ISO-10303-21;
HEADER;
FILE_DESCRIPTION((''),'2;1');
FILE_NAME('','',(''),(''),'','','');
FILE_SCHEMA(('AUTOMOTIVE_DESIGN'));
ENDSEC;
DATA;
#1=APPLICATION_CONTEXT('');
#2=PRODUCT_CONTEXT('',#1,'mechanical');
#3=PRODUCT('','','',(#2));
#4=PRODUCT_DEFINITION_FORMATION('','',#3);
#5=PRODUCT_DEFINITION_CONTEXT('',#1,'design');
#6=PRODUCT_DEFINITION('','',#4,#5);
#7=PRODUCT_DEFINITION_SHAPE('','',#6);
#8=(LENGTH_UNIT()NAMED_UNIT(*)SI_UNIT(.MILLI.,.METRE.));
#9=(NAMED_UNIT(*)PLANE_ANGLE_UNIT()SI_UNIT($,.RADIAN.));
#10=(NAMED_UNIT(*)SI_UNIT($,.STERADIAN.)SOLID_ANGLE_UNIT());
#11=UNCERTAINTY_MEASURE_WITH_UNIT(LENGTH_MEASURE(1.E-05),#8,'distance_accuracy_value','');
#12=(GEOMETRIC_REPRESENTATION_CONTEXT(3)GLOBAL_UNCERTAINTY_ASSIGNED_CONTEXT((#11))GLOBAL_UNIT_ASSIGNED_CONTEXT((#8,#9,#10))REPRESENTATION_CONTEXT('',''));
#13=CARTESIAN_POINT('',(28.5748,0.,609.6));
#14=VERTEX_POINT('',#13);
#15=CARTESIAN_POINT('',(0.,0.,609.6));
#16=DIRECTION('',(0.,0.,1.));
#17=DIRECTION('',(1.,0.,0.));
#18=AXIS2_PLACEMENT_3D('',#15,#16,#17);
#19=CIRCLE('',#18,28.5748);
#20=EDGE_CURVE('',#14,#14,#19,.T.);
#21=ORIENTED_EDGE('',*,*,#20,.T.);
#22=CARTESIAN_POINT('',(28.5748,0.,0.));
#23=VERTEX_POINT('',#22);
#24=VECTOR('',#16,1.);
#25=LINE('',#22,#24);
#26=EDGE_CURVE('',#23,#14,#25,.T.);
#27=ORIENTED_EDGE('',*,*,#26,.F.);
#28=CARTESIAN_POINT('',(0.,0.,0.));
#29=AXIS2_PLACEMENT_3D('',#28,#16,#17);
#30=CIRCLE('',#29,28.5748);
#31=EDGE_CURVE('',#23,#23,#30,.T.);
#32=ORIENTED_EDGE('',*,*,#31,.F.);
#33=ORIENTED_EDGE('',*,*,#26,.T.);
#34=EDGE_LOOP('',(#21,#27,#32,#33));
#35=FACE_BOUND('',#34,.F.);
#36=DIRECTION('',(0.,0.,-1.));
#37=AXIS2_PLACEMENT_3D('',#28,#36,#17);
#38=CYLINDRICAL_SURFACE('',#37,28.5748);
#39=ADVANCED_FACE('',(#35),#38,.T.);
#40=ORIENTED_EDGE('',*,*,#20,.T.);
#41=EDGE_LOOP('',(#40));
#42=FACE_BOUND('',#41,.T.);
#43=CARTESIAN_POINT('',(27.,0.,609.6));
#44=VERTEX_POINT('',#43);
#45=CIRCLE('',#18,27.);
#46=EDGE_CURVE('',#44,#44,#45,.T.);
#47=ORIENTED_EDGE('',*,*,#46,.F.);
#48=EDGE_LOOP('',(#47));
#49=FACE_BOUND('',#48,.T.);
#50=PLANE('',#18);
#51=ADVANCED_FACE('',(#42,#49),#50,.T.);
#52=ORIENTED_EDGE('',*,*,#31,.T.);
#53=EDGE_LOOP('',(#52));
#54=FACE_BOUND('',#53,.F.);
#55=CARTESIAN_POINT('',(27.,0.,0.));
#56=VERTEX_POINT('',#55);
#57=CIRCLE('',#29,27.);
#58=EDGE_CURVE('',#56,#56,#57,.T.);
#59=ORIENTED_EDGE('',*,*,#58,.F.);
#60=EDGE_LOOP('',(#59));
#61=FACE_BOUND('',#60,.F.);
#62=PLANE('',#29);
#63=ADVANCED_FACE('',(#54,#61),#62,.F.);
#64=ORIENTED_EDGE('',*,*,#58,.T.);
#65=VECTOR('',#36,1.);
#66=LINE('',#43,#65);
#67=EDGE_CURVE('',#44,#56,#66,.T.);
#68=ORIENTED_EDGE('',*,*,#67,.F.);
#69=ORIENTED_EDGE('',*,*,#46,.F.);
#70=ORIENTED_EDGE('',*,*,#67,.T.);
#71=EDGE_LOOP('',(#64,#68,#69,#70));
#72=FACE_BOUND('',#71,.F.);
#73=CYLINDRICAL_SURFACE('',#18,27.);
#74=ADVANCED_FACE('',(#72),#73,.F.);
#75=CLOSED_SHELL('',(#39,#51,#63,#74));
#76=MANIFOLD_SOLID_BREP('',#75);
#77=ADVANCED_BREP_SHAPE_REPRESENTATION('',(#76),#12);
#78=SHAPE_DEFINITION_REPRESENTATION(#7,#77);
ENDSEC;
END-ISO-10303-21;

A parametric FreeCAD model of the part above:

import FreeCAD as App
import Part
import Sketcher
from FreeCAD import Vector
Q = App.Units.Quantity

doc = App.newDocument("Part")
params = doc.addObject("Spreadsheet::Sheet", "Params")
for row, (alias, value) in enumerate([
    ("pad1_length", "609.6 mm"),
    ("sketch2_diameter", "54 mm"),
], start=1):
    params.set(f"A{row}", alias)
    params.set(f"B{row}", "=" + value)
    params.setAlias(f"B{row}", alias)

body = doc.addObject("PartDesign::Body", "Body")

# Sketch on XY plane
sketch1 = body.newObject("Sketcher::SketchObject", "Sketch")
sketch1.AttachmentSupport = (doc.getObject("XY_Plane"), [""])
sketch1.MapMode = "FlatFace"
sketch1.addGeometry(Part.Circle(Vector(0, 0, 0), Vector(0, 0, 1), 29), False)
sketch1.addConstraint([
    Sketcher.Constraint("Coincident", 0, 3, -1, 1),
    Sketcher.Constraint("Diameter", 0, Q("57.1496 mm")),
])
pad1 = body.newObject("PartDesign::Pad", "Pad")
pad1.Profile = sketch1
pad1.setExpression("Length", "Params.pad1_length")

# Sketch on XY plane
sketch2 = body.newObject("Sketcher::SketchObject", "Sketch001")
sketch2.AttachmentSupport = (doc.getObject("XY_Plane"), [""])
sketch2.MapMode = "FlatFace"
sketch2.AttachmentOffset = App.Placement(Vector(0, 0, 609.6), App.Rotation())
sketch2.addGeometry(Part.Circle(Vector(0, 0, 0), Vector(0, 0, 1), 27), False)
sketch2.addConstraint([
    Sketcher.Constraint("Coincident", 0, 3, -1, 1),
    Sketcher.Constraint("Diameter", 0, Q("54 mm")),
])
sketch2.setExpression("Constraints[1]", "Params.sketch2_diameter")
pocket1 = body.newObject("PartDesign::Pocket", "Pocket")
pocket1.Profile = sketch2
pocket1.Type = "ThroughAll"

doc.recompute()
